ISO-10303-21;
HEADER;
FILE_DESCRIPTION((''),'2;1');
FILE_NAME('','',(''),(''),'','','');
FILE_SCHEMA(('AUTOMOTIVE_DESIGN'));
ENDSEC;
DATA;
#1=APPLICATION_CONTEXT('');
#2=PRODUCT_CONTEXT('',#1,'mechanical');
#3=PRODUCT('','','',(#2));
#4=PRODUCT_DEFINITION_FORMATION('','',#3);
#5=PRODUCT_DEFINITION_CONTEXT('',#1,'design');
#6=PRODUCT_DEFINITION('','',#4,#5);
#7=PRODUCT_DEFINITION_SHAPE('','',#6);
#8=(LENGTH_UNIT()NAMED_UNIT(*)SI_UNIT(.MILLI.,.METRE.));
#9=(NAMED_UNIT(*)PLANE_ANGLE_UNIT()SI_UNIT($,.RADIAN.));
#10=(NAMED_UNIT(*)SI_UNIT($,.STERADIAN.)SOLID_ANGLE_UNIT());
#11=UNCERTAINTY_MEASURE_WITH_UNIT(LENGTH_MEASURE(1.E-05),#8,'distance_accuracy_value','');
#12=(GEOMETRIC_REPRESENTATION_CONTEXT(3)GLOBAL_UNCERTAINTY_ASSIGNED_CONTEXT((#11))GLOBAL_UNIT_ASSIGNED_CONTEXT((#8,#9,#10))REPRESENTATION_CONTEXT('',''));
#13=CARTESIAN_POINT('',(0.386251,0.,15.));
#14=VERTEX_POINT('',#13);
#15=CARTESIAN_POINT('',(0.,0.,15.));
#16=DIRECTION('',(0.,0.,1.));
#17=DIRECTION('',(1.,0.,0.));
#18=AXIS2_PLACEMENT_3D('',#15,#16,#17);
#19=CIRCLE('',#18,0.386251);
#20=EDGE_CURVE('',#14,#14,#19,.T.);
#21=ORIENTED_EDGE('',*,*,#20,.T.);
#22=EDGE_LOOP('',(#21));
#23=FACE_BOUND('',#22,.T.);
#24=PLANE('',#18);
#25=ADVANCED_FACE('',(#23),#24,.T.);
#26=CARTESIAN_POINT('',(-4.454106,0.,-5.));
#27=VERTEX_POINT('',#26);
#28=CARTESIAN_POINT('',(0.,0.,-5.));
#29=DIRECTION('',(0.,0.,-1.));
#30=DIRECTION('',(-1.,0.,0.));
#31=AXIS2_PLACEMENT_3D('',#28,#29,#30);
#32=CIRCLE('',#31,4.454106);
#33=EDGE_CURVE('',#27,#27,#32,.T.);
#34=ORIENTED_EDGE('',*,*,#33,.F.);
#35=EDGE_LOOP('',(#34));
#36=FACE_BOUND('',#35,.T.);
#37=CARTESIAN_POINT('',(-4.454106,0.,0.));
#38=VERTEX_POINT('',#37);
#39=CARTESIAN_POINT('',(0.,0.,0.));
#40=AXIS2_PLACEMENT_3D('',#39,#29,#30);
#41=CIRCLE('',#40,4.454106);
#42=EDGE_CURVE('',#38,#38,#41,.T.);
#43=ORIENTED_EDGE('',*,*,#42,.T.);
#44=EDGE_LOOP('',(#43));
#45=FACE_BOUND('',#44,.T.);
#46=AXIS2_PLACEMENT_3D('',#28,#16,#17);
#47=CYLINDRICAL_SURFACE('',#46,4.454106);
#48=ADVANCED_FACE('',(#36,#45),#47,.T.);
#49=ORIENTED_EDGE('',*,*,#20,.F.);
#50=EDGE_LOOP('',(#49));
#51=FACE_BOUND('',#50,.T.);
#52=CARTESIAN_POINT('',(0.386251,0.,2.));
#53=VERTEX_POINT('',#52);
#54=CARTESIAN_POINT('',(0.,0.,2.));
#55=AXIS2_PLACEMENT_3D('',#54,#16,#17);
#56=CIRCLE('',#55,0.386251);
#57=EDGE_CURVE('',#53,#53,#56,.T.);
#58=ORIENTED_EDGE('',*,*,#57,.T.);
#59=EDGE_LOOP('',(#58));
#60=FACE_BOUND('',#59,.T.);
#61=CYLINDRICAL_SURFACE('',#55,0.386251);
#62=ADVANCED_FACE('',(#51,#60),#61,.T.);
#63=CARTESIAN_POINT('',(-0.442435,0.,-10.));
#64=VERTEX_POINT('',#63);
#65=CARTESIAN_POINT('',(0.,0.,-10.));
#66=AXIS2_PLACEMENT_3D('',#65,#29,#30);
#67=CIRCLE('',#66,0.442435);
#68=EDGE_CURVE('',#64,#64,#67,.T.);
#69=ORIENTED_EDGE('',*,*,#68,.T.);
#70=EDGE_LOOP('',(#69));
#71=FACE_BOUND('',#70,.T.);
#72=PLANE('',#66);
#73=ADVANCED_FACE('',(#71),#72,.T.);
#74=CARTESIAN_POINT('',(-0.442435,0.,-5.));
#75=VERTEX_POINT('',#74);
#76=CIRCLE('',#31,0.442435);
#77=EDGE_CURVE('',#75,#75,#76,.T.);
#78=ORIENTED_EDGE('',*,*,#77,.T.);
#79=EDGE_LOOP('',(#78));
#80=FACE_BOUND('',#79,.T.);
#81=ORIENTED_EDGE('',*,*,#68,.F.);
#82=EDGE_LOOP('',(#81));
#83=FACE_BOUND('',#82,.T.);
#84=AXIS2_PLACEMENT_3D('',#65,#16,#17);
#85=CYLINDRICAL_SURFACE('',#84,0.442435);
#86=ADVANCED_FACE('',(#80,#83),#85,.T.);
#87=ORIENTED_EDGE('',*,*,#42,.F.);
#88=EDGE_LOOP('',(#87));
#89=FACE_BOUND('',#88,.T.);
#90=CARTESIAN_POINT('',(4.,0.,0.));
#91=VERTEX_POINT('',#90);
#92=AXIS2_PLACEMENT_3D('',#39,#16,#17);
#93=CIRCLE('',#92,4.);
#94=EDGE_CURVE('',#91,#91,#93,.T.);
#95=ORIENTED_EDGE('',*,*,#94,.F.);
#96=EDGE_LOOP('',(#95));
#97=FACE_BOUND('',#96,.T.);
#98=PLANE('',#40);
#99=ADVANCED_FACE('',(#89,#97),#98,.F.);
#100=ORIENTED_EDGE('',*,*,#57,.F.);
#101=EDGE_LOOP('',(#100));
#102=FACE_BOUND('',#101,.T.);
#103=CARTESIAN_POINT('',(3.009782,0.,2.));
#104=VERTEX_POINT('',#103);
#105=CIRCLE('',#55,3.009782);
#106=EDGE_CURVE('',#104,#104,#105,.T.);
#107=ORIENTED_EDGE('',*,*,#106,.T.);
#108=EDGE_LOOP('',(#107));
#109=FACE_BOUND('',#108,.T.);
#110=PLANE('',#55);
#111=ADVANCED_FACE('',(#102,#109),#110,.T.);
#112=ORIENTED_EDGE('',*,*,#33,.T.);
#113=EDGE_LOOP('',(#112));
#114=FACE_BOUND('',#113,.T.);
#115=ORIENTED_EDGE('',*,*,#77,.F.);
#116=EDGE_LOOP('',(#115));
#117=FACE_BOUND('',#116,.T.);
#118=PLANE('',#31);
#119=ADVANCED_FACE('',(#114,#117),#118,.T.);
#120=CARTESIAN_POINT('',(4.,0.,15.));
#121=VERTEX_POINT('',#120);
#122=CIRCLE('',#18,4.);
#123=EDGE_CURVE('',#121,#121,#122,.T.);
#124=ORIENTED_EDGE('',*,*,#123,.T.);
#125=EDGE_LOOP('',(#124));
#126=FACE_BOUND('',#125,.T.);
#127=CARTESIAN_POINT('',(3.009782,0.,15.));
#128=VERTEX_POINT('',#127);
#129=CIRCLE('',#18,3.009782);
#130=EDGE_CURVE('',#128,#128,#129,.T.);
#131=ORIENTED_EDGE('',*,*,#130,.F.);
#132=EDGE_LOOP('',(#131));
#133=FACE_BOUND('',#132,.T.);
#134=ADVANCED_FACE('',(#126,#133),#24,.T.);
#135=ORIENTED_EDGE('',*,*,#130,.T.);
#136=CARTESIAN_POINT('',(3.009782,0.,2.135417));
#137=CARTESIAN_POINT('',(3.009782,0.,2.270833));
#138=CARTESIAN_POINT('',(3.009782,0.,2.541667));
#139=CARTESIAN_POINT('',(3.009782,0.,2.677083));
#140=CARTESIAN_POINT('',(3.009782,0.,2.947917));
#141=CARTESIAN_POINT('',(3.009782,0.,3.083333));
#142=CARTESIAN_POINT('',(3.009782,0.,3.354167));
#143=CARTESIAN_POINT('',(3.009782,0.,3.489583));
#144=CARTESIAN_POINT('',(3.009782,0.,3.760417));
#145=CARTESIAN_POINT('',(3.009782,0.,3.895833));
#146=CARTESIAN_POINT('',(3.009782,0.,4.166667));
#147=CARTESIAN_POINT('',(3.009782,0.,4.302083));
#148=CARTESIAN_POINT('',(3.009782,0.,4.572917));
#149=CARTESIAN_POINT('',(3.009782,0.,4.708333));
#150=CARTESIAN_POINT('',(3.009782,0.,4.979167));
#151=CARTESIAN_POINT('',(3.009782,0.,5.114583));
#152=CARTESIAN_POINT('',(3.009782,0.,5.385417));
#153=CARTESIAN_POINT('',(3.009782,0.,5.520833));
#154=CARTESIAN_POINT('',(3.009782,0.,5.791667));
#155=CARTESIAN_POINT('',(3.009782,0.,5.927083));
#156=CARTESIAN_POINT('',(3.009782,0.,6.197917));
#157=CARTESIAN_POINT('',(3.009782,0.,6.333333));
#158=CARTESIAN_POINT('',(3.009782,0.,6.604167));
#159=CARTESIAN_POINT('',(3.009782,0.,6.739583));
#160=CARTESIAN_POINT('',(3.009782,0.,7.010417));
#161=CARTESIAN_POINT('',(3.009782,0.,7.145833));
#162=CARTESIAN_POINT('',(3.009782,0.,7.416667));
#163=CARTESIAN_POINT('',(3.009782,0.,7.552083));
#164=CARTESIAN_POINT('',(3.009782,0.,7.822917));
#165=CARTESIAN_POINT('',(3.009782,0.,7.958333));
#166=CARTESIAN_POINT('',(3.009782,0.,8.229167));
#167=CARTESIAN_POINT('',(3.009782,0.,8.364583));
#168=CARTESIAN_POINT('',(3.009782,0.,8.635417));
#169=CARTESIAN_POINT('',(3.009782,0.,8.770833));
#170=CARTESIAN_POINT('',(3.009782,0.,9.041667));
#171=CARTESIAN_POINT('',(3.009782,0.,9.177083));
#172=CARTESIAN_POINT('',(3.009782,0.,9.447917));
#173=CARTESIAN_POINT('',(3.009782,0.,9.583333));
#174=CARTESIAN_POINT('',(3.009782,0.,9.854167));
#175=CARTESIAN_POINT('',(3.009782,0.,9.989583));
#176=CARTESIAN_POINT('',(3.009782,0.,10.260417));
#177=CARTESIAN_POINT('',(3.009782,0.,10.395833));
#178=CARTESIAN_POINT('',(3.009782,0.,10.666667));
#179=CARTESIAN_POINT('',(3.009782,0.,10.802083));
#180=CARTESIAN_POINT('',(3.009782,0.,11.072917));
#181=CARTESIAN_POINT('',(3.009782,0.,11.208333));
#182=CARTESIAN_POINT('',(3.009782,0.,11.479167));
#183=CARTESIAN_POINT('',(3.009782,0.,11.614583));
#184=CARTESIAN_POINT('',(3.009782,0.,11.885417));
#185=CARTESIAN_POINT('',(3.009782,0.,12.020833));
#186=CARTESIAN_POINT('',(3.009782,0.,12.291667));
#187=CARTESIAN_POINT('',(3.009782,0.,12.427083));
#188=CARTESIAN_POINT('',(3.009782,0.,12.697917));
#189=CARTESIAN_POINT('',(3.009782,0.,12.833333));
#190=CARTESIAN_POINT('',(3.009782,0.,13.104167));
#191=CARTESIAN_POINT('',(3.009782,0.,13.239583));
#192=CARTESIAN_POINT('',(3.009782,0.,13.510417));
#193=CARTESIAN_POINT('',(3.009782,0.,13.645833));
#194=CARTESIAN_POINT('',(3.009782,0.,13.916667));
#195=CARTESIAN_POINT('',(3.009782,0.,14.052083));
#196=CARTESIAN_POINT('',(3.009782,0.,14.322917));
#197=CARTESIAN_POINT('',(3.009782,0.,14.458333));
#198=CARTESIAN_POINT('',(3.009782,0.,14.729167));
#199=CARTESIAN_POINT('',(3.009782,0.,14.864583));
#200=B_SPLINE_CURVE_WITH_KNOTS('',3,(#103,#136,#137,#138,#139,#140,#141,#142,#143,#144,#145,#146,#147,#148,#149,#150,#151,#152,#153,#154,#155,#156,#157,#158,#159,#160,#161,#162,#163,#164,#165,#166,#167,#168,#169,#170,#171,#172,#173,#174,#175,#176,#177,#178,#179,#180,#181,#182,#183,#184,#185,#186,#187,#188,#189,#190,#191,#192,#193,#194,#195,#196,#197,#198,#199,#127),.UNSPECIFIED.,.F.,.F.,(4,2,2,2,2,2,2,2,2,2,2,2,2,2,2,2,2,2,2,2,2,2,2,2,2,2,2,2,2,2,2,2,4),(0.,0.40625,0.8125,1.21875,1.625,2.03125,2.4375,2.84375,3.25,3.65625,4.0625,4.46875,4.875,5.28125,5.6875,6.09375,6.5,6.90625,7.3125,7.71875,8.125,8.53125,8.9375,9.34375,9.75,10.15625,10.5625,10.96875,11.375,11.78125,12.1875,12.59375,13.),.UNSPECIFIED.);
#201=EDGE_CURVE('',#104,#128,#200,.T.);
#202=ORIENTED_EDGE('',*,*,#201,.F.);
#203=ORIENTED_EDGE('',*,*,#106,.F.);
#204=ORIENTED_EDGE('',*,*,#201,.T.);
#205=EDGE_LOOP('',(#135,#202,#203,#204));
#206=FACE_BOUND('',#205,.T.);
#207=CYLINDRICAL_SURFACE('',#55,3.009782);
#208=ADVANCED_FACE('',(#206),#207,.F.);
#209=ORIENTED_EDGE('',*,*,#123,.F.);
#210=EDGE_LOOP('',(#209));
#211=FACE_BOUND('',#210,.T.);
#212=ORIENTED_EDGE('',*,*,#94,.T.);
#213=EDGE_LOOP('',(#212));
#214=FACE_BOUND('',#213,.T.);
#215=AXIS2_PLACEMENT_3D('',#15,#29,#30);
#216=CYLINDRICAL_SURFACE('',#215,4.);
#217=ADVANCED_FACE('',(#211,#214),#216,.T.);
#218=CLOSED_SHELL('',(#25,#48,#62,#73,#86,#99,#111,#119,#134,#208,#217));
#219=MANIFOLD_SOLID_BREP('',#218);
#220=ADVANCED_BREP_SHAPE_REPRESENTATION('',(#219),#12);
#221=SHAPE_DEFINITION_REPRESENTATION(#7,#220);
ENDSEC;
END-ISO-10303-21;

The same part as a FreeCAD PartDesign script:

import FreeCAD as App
import Part
import Sketcher

V = App.Vector

doc = App.newDocument("Part")
body = doc.addObject("PartDesign::Body", "Body")

sketch1 = doc.addObject("Sketcher::SketchObject", "Sketch")
body.addObject(sketch1)
sketch1.AttachmentSupport = (doc.XY_Plane, [""])
sketch1.MapMode = "FlatFace"
sketch1.addGeometry(Part.Circle(V(0, 0, 0), V(0, 0, 1), 4), False)
sketch1.addGeometry(Part.Circle(V(0, 0, 0), V(0, 0, 1), 3), False)
sketch1.addConstraint(Sketcher.Constraint("Coincident", 0, 3, -1, 1))
sketch1.addConstraint(Sketcher.Constraint("Coincident", 1, 3, -1, 1))
sketch1.addConstraint(Sketcher.Constraint("Diameter", 0, 8.0))
sketch1.addConstraint(Sketcher.Constraint("Diameter", 1, 6.0))
pad1 = doc.addObject("PartDesign::Pad", "Pad")
body.addObject(pad1)
pad1.Profile = sketch1
pad1.Length = 15

sketch2 = doc.addObject("Sketcher::SketchObject", "Sketch001")
body.addObject(sketch2)
sketch2.AttachmentSupport = (doc.XY_Plane, [""])
sketch2.MapMode = "FlatFace"
sketch2.addGeometry(Part.Circle(V(0, 0, 0), V(0, 0, 1), 3), False)
sketch2.addConstraint(Sketcher.Constraint("Coincident", 0, 3, -1, 1))
sketch2.addConstraint(Sketcher.Constraint("Diameter", 0, 6.0))
pad2 = doc.addObject("PartDesign::Pad", "Pad001")
body.addObject(pad2)
pad2.Profile = sketch2
pad2.Length = 15

sketch3 = doc.addObject("Sketcher::SketchObject", "Sketch002")
body.addObject(sketch3)
sketch3.AttachmentSupport = (doc.XY_Plane, [""])
sketch3.MapMode = "FlatFace"
sketch3.AttachmentOffset = App.Placement(V(0, 0, 15), App.Rotation())
sketch3.addGeometry(Part.Circle(V(0, 0, 0), V(0, 0, 1), 3.01), False)
sketch3.addGeometry(Part.Circle(V(0, 0, 0), V(0, 0, 1), 0.39), False)
sketch3.addConstraint(Sketcher.Constraint("Coincident", 0, 3, -1, 1))
sketch3.addConstraint(Sketcher.Constraint("Coincident", 1, 3, -1, 1))
sketch3.addConstraint(Sketcher.Constraint("Diameter", 0, 6.019565))
sketch3.addConstraint(Sketcher.Constraint("Diameter", 1, 0.772502))
pocket1 = doc.addObject("PartDesign::Pocket", "Pocket")
body.addObject(pocket1)
pocket1.Profile = sketch3
pocket1.Length = 13

sketch4 = doc.addObject("Sketcher::SketchObject", "Sketch003")
body.addObject(sketch4)
sketch4.AttachmentSupport = (doc.XY_Plane, [""])
sketch4.MapMode = "FlatFace"
sketch4.addGeometry(Part.Circle(V(0, 0, 0), V(0, 0, 1), 4.5), False)
sketch4.addConstraint(Sketcher.Constraint("Coincident", 0, 3, -1, 1))
sketch4.addConstraint(Sketcher.Constraint("Diameter", 0, 8.908211))
pad3 = doc.addObject("PartDesign::Pad", "Pad002")
body.addObject(pad3)
pad3.Profile = sketch4
pad3.Length = 5
pad3.Reversed = True

sketch5 = doc.addObject("Sketcher::SketchObject", "Sketch004")
body.addObject(sketch5)
sketch5.AttachmentSupport = (doc.XY_Plane, [""])
sketch5.MapMode = "FlatFace"
sketch5.AttachmentOffset = App.Placement(V(0, 0, -5), App.Rotation())
sketch5.addGeometry(Part.Circle(V(0, 0, 0), V(0, 0, 1), 0.44), False)
sketch5.addConstraint(Sketcher.Constraint("Coincident", 0, 3, -1, 1))
sketch5.addConstraint(Sketcher.Constraint("Diameter", 0, 0.884871))
pad4 = doc.addObject("PartDesign::Pad", "Pad003")
body.addObject(pad4)
pad4.Profile = sketch5
pad4.Length = 5
pad4.Reversed = True

doc.recompute()
